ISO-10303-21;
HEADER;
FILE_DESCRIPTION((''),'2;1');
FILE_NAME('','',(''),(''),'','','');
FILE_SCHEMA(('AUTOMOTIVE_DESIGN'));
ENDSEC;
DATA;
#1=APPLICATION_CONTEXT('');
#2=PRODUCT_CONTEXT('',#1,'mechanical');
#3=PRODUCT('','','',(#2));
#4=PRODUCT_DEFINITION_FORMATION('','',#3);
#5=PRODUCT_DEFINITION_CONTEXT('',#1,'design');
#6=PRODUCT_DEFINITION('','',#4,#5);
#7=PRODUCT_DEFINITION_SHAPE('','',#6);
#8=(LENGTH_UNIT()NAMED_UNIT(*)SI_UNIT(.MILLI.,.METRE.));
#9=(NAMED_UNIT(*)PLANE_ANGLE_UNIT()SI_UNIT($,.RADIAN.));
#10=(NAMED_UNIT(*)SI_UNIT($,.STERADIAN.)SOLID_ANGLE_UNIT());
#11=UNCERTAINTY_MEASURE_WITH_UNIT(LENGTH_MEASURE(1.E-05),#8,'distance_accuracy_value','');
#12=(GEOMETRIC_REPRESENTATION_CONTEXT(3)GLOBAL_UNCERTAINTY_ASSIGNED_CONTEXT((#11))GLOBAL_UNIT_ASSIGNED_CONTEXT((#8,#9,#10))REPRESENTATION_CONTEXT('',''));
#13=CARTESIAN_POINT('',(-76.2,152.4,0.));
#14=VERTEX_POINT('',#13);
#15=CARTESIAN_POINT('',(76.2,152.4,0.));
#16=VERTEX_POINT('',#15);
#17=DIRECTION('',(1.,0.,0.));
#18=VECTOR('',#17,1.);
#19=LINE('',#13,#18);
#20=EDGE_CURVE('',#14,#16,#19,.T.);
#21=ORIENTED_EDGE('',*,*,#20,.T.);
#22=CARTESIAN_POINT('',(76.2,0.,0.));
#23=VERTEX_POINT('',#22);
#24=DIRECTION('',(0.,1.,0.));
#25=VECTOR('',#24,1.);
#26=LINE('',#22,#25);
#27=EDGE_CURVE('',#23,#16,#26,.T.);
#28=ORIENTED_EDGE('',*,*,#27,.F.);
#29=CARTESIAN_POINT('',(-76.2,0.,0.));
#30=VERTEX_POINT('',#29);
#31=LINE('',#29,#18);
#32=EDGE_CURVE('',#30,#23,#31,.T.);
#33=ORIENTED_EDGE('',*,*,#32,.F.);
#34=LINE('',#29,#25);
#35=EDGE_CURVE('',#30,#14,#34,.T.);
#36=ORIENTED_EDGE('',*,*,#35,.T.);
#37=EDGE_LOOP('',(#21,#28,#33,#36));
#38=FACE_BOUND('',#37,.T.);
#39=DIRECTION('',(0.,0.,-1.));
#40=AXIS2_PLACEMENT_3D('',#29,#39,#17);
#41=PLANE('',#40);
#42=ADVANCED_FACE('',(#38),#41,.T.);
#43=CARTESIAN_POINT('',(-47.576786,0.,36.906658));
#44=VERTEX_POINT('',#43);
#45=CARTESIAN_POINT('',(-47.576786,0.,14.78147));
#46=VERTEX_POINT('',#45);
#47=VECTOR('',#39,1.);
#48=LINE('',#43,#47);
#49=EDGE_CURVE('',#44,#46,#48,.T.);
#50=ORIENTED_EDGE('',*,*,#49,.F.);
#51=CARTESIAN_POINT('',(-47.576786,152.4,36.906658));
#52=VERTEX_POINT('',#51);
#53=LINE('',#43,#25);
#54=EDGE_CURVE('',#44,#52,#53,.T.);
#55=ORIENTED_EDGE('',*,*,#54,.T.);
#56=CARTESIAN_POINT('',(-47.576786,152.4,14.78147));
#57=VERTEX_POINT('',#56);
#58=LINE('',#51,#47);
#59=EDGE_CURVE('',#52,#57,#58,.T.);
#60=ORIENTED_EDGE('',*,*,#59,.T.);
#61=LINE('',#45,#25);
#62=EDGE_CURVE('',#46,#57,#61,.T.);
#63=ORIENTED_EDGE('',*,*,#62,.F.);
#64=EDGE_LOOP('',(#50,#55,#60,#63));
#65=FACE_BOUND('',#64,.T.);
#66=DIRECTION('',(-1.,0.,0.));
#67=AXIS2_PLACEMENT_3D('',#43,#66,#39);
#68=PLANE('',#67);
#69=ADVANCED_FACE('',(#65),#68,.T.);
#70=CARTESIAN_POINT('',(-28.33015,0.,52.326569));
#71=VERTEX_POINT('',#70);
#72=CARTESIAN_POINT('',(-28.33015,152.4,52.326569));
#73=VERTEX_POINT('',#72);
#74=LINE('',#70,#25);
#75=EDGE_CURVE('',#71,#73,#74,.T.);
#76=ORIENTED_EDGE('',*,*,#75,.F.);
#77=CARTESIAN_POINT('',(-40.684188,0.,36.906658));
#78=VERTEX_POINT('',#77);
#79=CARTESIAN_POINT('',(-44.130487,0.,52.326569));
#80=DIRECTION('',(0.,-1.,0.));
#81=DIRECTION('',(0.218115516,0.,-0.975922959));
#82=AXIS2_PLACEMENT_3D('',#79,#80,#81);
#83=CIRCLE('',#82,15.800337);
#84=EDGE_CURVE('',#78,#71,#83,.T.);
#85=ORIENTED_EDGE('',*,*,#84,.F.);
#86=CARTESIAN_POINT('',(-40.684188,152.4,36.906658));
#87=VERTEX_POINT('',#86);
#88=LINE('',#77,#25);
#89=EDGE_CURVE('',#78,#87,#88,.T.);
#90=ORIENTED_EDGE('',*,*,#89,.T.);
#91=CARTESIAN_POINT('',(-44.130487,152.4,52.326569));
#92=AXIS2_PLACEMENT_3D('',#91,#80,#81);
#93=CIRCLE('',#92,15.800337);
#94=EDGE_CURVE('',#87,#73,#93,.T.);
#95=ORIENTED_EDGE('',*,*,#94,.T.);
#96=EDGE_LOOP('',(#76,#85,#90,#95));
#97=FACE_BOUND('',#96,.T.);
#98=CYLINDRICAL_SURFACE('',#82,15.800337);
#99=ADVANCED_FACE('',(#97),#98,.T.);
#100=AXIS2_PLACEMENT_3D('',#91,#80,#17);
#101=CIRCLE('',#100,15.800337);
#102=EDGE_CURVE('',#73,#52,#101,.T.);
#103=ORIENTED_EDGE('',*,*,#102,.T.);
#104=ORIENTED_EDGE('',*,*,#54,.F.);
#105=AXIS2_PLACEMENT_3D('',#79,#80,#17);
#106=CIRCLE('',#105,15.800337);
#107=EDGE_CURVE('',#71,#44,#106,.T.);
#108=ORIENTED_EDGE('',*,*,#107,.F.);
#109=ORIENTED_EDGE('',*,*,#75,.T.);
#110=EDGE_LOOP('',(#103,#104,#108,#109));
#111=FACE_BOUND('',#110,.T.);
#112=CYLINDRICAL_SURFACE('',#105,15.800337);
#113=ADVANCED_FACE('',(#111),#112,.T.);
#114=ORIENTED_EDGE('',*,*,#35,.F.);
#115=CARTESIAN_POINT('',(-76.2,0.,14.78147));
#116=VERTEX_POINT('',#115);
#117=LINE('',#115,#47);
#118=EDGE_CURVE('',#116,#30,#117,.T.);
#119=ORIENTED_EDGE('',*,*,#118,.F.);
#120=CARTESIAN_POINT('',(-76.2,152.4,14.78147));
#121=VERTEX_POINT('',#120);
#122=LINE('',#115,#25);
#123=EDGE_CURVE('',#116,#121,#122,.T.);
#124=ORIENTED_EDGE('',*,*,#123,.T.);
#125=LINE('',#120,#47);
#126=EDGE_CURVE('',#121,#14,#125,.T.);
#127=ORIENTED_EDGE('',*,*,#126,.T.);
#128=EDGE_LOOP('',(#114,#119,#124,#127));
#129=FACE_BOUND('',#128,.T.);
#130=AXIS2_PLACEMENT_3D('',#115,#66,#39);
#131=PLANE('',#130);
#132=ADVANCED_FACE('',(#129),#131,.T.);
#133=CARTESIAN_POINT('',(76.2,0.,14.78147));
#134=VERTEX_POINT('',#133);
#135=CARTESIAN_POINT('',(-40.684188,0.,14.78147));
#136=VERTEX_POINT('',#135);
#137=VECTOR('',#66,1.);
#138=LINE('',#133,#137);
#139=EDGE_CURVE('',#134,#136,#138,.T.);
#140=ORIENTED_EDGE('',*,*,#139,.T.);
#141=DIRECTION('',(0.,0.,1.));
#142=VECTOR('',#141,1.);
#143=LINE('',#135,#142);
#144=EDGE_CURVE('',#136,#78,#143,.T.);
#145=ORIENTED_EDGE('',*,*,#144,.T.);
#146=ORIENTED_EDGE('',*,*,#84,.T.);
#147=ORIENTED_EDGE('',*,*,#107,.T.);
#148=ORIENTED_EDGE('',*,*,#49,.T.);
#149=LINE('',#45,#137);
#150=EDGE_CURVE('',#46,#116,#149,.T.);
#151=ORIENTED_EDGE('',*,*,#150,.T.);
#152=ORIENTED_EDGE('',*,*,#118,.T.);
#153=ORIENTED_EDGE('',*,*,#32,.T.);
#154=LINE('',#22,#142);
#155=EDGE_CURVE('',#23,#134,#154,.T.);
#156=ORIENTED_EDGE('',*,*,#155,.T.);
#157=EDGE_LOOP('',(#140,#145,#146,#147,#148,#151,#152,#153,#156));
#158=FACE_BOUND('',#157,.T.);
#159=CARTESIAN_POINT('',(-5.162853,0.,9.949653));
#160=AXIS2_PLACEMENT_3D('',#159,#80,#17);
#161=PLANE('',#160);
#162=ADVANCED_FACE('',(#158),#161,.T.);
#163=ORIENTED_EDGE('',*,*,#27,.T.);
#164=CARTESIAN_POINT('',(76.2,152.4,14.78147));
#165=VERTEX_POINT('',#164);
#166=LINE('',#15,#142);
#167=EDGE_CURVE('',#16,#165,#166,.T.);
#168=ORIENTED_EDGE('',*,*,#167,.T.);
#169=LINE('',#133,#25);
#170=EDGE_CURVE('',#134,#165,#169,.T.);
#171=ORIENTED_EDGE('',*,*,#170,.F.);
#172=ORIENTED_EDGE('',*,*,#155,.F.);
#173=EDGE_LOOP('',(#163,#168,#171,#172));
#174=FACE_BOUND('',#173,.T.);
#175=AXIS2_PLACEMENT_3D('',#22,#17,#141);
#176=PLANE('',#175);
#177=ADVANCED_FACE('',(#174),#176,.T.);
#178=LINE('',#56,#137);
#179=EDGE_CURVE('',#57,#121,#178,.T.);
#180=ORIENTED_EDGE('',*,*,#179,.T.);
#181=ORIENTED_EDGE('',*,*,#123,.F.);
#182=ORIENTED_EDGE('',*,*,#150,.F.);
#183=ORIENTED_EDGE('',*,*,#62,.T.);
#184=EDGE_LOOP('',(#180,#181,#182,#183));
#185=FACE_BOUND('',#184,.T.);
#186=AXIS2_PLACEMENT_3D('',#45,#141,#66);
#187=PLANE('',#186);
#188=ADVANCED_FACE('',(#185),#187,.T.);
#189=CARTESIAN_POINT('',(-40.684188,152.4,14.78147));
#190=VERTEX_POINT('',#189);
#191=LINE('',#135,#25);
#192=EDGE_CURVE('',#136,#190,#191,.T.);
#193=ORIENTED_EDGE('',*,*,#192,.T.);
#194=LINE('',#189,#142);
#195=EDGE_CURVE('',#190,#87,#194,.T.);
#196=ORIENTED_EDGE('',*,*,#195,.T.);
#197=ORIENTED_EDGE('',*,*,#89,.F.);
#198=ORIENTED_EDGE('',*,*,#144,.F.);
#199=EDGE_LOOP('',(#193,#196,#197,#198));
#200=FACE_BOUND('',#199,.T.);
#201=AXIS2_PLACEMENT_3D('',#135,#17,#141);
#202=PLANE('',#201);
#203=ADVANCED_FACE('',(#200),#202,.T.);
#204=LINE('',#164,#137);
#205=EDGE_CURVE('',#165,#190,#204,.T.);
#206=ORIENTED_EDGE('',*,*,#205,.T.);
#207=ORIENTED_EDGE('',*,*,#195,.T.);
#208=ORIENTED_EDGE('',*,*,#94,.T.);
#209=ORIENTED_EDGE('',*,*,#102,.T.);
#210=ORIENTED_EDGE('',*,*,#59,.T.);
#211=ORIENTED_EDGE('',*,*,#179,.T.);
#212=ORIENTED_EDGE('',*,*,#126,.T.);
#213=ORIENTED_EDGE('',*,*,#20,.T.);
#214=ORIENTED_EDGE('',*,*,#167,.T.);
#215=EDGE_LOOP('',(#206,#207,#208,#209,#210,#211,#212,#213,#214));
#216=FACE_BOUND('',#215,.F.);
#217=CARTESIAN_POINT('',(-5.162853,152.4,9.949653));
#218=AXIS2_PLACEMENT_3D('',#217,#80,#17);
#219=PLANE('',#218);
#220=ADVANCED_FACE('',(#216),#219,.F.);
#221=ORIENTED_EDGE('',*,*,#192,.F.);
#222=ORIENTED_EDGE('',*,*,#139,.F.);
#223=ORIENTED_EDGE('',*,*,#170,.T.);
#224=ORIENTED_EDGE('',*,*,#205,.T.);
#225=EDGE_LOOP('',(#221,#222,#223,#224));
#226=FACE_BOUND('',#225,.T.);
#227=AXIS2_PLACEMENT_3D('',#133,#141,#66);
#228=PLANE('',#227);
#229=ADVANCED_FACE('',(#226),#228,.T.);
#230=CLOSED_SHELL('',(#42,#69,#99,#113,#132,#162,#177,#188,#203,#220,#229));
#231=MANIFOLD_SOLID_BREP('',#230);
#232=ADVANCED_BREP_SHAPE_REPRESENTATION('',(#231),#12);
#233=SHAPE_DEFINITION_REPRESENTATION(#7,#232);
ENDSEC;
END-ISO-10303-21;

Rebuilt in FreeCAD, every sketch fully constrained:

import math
import FreeCAD as App
import Part
import Sketcher

V = App.Vector
Q = App.Units.Quantity

doc = App.newDocument("Part")
body = doc.addObject("PartDesign::Body", "Body")

sketch1 = body.newObject("Sketcher::SketchObject", "Sketch")
sketch1.AttachmentSupport = (doc.getObject("XZ_Plane"), [""])
sketch1.MapMode = "FlatFace"
sketch1.addGeometry([
    Part.LineSegment(V(-76, 0, 0), V(76, 0, 0)),
    Part.LineSegment(V(76, 0, 0), V(76, 15, 0)),
    Part.LineSegment(V(76, 15, 0), V(-41, 15, 0)),
    Part.LineSegment(V(-41, 15, 0), V(-41, 37, 0)),
    Part.ArcOfCircle(Part.Circle(V(-44, 52, 0), V(0, 0, 1), 16), math.radians(-77), math.radians(0)),
    Part.ArcOfCircle(Part.Circle(V(-44, 52, 0), V(0, 0, 1), 16), math.radians(0), math.radians(257)),
    Part.LineSegment(V(-48, 37, 0), V(-48, 15, 0)),
    Part.LineSegment(V(-48, 15, 0), V(-76, 15, 0)),
    Part.LineSegment(V(-76, 15, 0), V(-76, 0, 0)),
], False)
sketch1.addConstraint([
    Sketcher.Constraint("Coincident", 0, 2, 1, 1),
    Sketcher.Constraint("Coincident", 1, 2, 2, 1),
    Sketcher.Constraint("Coincident", 2, 2, 3, 1),
    Sketcher.Constraint("Coincident", 3, 2, 4, 1),
    Sketcher.Constraint("Tangent", 4, 2, 5, 1),
    Sketcher.Constraint("Coincident", 5, 2, 6, 1),
    Sketcher.Constraint("Coincident", 6, 2, 7, 1),
    Sketcher.Constraint("Coincident", 7, 2, 8, 1),
    Sketcher.Constraint("Coincident", 8, 2, 0, 1),
    Sketcher.Constraint("Horizontal", 0),
    Sketcher.Constraint("Vertical", 1),
    Sketcher.Constraint("Horizontal", 2),
    Sketcher.Constraint("Vertical", 3),
    Sketcher.Constraint("Vertical", 6),
    Sketcher.Constraint("Horizontal", 7),
    Sketcher.Constraint("Vertical", 8),
    Sketcher.Constraint("Equal", 4, 5),
    Sketcher.Constraint("Symmetric", 0, 2, 8, 2, -1, 1),
    Sketcher.Constraint("Horizontal", 5, 3, 4, 2),
    Sketcher.Constraint("Horizontal", 3, 2, 5, 2),
    Sketcher.Constraint("Horizontal", 2, 2, 6, 2),
    Sketcher.Constraint("DistanceX", 0, 1, 0, 2, Q("6 in")),
    Sketcher.Constraint("Radius", 4, 15.800337),
    Sketcher.Constraint("DistanceX", 2, 2, 2, 1, 116.884188),
    Sketcher.Constraint("DistanceY", 1, 1, 1, 2, 14.78147),
    Sketcher.Constraint("DistanceY", 1, 2, 4, 3, 37.545099),
    Sketcher.Constraint("DistanceX", 4, 3, 2, 2, 3.446299),
])
pad1 = body.newObject("PartDesign::Pad", "Pad")
pad1.Profile = sketch1
pad1.Length = Q("6 in")
pad1.Reversed = True

doc.recompute()
